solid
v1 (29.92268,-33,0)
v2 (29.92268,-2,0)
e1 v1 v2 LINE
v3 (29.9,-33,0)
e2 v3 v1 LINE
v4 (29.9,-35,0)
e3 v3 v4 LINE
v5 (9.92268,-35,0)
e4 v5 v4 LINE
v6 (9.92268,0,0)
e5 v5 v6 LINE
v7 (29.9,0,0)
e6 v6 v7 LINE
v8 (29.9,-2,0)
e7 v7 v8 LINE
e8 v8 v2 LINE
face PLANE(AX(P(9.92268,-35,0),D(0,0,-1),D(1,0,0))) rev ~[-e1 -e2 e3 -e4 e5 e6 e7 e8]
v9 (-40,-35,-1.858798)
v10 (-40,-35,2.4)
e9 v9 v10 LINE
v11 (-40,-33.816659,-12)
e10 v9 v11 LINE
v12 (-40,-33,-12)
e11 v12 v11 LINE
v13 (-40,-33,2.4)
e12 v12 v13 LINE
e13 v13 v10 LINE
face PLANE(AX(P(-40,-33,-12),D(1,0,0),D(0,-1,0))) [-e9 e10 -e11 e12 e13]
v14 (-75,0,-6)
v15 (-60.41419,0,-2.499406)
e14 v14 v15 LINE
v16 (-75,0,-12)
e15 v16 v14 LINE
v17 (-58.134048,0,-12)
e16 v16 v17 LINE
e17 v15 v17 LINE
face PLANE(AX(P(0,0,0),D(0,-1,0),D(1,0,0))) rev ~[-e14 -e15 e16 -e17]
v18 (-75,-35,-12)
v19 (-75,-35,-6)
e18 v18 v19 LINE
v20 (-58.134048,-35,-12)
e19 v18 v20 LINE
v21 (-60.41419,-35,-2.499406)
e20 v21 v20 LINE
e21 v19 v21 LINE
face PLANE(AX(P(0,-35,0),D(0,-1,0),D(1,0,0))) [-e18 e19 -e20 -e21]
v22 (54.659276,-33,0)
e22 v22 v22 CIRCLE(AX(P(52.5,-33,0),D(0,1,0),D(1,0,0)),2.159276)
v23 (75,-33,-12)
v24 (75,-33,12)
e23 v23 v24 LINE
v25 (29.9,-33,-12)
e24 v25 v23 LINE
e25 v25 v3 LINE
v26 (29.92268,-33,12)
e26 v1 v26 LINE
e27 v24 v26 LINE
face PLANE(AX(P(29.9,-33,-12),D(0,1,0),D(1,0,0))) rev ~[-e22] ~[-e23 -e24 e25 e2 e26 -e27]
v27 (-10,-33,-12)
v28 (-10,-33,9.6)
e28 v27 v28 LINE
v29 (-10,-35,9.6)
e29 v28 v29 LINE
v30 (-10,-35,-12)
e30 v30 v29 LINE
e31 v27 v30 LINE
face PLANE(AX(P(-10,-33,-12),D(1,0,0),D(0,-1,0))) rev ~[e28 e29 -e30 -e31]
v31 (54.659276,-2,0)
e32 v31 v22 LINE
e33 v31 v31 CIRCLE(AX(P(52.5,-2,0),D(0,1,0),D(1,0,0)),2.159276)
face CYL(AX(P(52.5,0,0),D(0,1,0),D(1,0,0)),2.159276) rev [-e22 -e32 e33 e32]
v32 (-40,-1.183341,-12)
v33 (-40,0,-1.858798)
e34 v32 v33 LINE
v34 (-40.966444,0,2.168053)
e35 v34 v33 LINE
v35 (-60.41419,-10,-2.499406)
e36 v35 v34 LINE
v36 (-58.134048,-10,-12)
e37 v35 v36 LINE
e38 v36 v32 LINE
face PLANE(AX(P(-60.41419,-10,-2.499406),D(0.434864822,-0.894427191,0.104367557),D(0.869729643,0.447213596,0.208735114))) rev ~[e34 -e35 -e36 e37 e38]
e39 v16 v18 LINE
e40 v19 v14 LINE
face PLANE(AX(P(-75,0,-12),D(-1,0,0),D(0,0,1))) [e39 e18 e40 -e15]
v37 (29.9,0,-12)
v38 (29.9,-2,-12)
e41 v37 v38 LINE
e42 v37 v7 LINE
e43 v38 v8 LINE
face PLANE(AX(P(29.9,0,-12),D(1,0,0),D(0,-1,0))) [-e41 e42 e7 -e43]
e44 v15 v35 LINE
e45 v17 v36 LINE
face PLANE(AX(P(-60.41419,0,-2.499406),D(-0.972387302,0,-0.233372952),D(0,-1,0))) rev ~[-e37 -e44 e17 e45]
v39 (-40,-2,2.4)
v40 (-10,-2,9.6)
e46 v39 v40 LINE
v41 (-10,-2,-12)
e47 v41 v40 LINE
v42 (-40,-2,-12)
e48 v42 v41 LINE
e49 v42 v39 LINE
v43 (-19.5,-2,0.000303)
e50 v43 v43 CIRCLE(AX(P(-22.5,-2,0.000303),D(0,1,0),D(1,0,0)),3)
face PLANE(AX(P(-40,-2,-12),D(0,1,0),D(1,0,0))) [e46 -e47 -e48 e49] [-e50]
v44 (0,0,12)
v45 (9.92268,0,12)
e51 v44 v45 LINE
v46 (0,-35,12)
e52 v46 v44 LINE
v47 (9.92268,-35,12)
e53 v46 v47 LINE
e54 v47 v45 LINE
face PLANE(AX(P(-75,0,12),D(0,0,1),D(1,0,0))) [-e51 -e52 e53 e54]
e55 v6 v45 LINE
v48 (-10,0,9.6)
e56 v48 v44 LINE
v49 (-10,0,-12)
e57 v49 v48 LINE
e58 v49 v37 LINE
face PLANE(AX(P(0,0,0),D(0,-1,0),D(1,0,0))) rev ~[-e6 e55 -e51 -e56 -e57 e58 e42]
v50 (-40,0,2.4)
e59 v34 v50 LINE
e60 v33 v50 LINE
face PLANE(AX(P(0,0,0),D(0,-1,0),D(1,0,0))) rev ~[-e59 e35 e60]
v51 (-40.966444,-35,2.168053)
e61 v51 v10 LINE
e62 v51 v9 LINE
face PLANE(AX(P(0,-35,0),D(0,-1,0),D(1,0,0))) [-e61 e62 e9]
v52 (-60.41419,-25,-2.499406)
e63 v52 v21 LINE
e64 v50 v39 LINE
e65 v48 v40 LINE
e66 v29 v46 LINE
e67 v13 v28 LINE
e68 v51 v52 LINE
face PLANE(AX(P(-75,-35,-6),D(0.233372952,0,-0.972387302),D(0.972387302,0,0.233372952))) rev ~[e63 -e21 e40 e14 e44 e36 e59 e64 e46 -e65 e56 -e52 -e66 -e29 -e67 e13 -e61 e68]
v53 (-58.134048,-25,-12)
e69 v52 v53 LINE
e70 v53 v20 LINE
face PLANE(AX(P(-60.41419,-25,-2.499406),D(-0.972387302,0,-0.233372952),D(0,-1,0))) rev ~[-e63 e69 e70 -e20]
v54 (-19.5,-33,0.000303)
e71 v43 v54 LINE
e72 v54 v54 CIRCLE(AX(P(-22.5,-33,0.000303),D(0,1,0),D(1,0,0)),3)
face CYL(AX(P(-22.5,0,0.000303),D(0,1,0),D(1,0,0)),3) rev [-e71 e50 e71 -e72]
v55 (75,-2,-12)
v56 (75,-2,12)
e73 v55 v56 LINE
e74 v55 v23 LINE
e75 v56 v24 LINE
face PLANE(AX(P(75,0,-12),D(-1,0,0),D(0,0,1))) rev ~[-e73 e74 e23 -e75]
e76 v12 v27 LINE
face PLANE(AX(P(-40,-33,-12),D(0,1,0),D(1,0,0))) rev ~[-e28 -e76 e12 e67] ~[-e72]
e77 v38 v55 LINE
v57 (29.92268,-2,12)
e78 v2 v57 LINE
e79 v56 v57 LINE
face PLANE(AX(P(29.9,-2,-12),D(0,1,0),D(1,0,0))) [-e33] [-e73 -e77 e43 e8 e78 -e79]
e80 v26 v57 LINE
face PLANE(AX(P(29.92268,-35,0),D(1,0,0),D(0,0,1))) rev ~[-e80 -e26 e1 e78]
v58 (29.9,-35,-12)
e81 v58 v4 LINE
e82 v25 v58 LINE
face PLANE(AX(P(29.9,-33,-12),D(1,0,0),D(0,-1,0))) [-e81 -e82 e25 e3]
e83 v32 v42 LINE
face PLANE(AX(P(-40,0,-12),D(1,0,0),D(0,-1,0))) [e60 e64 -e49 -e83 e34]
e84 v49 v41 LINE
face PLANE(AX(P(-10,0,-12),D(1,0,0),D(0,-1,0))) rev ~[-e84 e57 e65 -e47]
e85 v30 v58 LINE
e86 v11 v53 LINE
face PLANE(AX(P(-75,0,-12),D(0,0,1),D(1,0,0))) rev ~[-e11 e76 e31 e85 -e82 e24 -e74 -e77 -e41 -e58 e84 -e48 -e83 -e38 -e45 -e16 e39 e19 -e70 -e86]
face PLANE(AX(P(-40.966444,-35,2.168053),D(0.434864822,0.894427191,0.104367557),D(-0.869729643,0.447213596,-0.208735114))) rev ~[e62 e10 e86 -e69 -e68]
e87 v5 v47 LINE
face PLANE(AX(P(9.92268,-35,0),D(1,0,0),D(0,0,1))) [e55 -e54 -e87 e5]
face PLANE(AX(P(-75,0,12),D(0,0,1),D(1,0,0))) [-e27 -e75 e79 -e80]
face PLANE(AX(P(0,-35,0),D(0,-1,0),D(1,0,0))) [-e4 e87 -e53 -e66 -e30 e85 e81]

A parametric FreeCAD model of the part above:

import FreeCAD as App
import Part
import Sketcher


def add_polygon(sketch, points):
    """Adds a closed chain of lines whose ends are joined by coincident constraints."""
    first, n = sketch.GeometryCount, len(points)
    for a, b in zip(points, points[1:] + points[:1]):
        sketch.addGeometry(Part.LineSegment(App.Vector(*a, 0), App.Vector(*b, 0)), False)
    for i in range(n):
        sketch.addConstraint(Sketcher.Constraint("Coincident", first + i, 2, first + (i + 1) % n, 1))

doc = App.newDocument("Part")
body = doc.addObject("PartDesign::Body", "Body")

sketch1 = body.newObject("Sketcher::SketchObject", "Sketch")
sketch1.AttachmentSupport = (doc.getObject("XZ_Plane"), [""])
sketch1.MapMode = "FlatFace"
add_polygon(sketch1, [(-75, 12), (-75, -12), (75, -12), (75, 12)])
sketch1.addGeometry(Part.Circle(App.Vector(52.5, 0, 0), App.Vector(0, 0, 1), 2.159276), False)
sketch1.addGeometry(Part.Circle(App.Vector(-22.5, 0.000303, 0), App.Vector(0, 0, 1), 3), False)
sketch1.addConstraint([
    Sketcher.Constraint("Vertical", 0),
    Sketcher.Constraint("Horizontal", 1),
    Sketcher.Constraint("Vertical", 2),
    Sketcher.Constraint("Horizontal", 3),
    Sketcher.Constraint("Symmetric", 0, 2, 2, 2, -1, 1),
    Sketcher.Constraint("PointOnObject", 4, 3, -1),
    Sketcher.Constraint("Diameter", 5, 6.0),
    Sketcher.Constraint("DistanceX", 1, 1, 1, 2, 150.0),
    Sketcher.Constraint("DistanceY", 0, 2, 0, 1, 24.0),
    Sketcher.Constraint("DistanceX", 5, 3, 4, 3, 75.0),
    Sketcher.Constraint("DistanceX", -1, 1, 4, 3, 52.5),
    Sketcher.Constraint("Diameter", 4, 4.318552),
    Sketcher.Constraint("DistanceY", -1, 1, 5, 3, 0.000303),
])
pad1 = body.newObject("PartDesign::Pad", "Pad")
pad1.Profile = sketch1
pad1.Length = 35

sketch2 = body.newObject("Sketcher::SketchObject", "Sketch001")
sketch2.AttachmentSupport = (doc.getObject("XZ_Plane"), [""])
sketch2.MapMode = "FlatFace"
sketch2.AttachmentOffset = App.Placement(App.Vector(0, 0, 35), App.Rotation())
add_polygon(sketch2, [(-75, 12), (-75, -6), (0, 12)])
sketch2.addConstraint([
    Sketcher.Constraint("Vertical", 0),
    Sketcher.Constraint("Horizontal", 2),
    Sketcher.Constraint("PointOnObject", 1, 2, -2),
    Sketcher.Constraint("DistanceX", 2, 2, 2, 1, 75.0),
    Sketcher.Constraint("DistanceY", 0, 2, 0, 1, 18.0),
    Sketcher.Constraint("DistanceY", 0, 2, -1, 1, 6.0),
])
pocket1 = body.newObject("PartDesign::Pocket", "Pocket")
pocket1.Profile = sketch2
pocket1.Length = 35

sketch3 = body.newObject("Sketcher::SketchObject", "Sketch002")
sketch3.Placement = App.Placement(App.Vector(-2.723147, 0, 11.346445), App.Rotation(App.Vector(0.972387302, 0, 0.233372952), App.Vector(0, 1, 0), App.Vector(-0.233372952, 0, 0.972387302), "ZXY"))
add_polygon(sketch3, [(-59.329285, -25), (-59.329285, -35), (-39.329285, -35)])
add_polygon(sketch3, [(-39.329285, 0), (-59.329285, 0), (-59.329285, -10)])
sketch3.addConstraint([
    Sketcher.Constraint("Vertical", 0),
    Sketcher.Constraint("Horizontal", 1),
    Sketcher.Constraint("Horizontal", 3),
    Sketcher.Constraint("Vertical", 4),
    Sketcher.Constraint("PointOnObject", 3, 2, -1),
    Sketcher.Constraint("Vertical", 2, 2, 3, 2),
    Sketcher.Constraint("Vertical", 1, 2, 5, 2),
    Sketcher.Constraint("Equal", 0, 4),
    Sketcher.Constraint("DistanceX", 1, 1, 1, 2, 20.0),
    Sketcher.Constraint("DistanceY", 0, 2, 0, 1, 10.0),
    Sketcher.Constraint("DistanceY", 0, 2, -1, 1, 35.0),
    Sketcher.Constraint("DistanceX", 0, 2, -1, 1, 59.329285),
])
pocket2 = body.newObject("PartDesign::Pocket", "Pocket001")
pocket2.Profile = sketch3
pocket2.Length = 25

sketch4 = body.newObject("Sketcher::SketchObject", "Sketch003")
sketch4.AttachmentSupport = (doc.getObject("XZ_Plane"), [""])
sketch4.MapMode = "FlatFace"
sketch4.AttachmentOffset = App.Placement(App.Vector(0, 0, 35), App.Rotation())
add_polygon(sketch4, [(9.92268, 12), (9.92268, 0), (29.92268, 0), (29.92268, 12)])
sketch4.addConstraint([
    Sketcher.Constraint("Vertical", 0),
    Sketcher.Constraint("Horizontal", 1),
    Sketcher.Constraint("Vertical", 2),
    Sketcher.Constraint("Horizontal", 3),
    Sketcher.Constraint("PointOnObject", 0, 2, -1),
    Sketcher.Constraint("DistanceX", 1, 1, 1, 2, 20.0),
    Sketcher.Constraint("DistanceY", 0, 2, 0, 1, 12.0),
    Sketcher.Constraint("DistanceX", -1, 1, 0, 2, 9.92268),
])
pocket3 = body.newObject("PartDesign::Pocket", "Pocket002")
pocket3.Profile = sketch4
pocket3.Length = 35

sketch5 = body.newObject("Sketcher::SketchObject", "Sketch004")
sketch5.AttachmentSupport = (doc.getObject("XY_Plane"), [""])
sketch5.MapMode = "FlatFace"
sketch5.AttachmentOffset = App.Placement(App.Vector(0, 0, -12), App.Rotation())
add_polygon(sketch5, [(-40, -35), (-40, -33), (-10, -33), (-10, -35)])
add_polygon(sketch5, [(-40, -2), (-40, 0), (-10, 0), (-10, -2)])
sketch5.addConstraint([
    Sketcher.Constraint("Vertical", 0),
    Sketcher.Constraint("Horizontal", 1),
    Sketcher.Constraint("Vertical", 2),
    Sketcher.Constraint("Horizontal", 3),
    Sketcher.Constraint("Vertical", 4),
    Sketcher.Constraint("Horizontal", 5),
    Sketcher.Constraint("Vertical", 6),
    Sketcher.Constraint("Horizontal", 7),
    Sketcher.Constraint("PointOnObject", 4, 2, -1),
    Sketcher.Constraint("Vertical", 3, 2, 4, 2),
    Sketcher.Constraint("Vertical", 2, 2, 5, 2),
    Sketcher.Constraint("Equal", 2, 4),
    Sketcher.Constraint("DistanceX", 1, 1, 1, 2, 30.0),
    Sketcher.Constraint("DistanceY", 0, 1, 0, 2, 2.0),
    Sketcher.Constraint("DistanceX", 0, 2, -1, 1, 40.0),
    Sketcher.Constraint("DistanceY", 0, 2, -1, 1, 33.0),
])
pocket4 = body.newObject("PartDesign::Pocket", "Pocket003")
pocket4.Profile = sketch5
pocket4.Length = 25
pocket4.Reversed = True

sketch6 = body.newObject("Sketcher::SketchObject", "Sketch005")
sketch6.AttachmentSupport = (doc.getObject("XY_Plane"), [""])
sketch6.MapMode = "FlatFace"
sketch6.AttachmentOffset = App.Placement(App.Vector(0, 0, -12), App.Rotation())
add_polygon(sketch6, [(29.9, -35), (29.9, -33), (75, -33), (75, -35)])
add_polygon(sketch6, [(29.9, -2), (29.9, 0), (75, 0), (75, -2)])
sketch6.addConstraint([
    Sketcher.Constraint("Vertical", 0),
    Sketcher.Constraint("Horizontal", 1),
    Sketcher.Constraint("Vertical", 2),
    Sketcher.Constraint("Horizontal", 3),
    Sketcher.Constraint("Vertical", 4),
    Sketcher.Constraint("Horizontal", 5),
    Sketcher.Constraint("Vertical", 6),
    Sketcher.Constraint("Horizontal", 7),
    Sketcher.Constraint("PointOnObject", 4, 2, -1),
    Sketcher.Constraint("Vertical", 3, 2, 4, 2),
    Sketcher.Constraint("Vertical", 2, 2, 5, 2),
    Sketcher.Constraint("Equal", 2, 4),
    Sketcher.Constraint("DistanceY", 0, 1, 0, 2, 2.0),
    Sketcher.Constraint("DistanceX", 1, 1, 1, 2, 45.1),
    Sketcher.Constraint("DistanceY", 0, 2, -1, 1, 33.0),
    Sketcher.Constraint("DistanceX", -1, 1, 1, 2, 75.0),
])
pocket5 = body.newObject("PartDesign::Pocket", "Pocket004")
pocket5.Profile = sketch6
pocket5.Length = 25
pocket5.Reversed = True

doc.recompute()
